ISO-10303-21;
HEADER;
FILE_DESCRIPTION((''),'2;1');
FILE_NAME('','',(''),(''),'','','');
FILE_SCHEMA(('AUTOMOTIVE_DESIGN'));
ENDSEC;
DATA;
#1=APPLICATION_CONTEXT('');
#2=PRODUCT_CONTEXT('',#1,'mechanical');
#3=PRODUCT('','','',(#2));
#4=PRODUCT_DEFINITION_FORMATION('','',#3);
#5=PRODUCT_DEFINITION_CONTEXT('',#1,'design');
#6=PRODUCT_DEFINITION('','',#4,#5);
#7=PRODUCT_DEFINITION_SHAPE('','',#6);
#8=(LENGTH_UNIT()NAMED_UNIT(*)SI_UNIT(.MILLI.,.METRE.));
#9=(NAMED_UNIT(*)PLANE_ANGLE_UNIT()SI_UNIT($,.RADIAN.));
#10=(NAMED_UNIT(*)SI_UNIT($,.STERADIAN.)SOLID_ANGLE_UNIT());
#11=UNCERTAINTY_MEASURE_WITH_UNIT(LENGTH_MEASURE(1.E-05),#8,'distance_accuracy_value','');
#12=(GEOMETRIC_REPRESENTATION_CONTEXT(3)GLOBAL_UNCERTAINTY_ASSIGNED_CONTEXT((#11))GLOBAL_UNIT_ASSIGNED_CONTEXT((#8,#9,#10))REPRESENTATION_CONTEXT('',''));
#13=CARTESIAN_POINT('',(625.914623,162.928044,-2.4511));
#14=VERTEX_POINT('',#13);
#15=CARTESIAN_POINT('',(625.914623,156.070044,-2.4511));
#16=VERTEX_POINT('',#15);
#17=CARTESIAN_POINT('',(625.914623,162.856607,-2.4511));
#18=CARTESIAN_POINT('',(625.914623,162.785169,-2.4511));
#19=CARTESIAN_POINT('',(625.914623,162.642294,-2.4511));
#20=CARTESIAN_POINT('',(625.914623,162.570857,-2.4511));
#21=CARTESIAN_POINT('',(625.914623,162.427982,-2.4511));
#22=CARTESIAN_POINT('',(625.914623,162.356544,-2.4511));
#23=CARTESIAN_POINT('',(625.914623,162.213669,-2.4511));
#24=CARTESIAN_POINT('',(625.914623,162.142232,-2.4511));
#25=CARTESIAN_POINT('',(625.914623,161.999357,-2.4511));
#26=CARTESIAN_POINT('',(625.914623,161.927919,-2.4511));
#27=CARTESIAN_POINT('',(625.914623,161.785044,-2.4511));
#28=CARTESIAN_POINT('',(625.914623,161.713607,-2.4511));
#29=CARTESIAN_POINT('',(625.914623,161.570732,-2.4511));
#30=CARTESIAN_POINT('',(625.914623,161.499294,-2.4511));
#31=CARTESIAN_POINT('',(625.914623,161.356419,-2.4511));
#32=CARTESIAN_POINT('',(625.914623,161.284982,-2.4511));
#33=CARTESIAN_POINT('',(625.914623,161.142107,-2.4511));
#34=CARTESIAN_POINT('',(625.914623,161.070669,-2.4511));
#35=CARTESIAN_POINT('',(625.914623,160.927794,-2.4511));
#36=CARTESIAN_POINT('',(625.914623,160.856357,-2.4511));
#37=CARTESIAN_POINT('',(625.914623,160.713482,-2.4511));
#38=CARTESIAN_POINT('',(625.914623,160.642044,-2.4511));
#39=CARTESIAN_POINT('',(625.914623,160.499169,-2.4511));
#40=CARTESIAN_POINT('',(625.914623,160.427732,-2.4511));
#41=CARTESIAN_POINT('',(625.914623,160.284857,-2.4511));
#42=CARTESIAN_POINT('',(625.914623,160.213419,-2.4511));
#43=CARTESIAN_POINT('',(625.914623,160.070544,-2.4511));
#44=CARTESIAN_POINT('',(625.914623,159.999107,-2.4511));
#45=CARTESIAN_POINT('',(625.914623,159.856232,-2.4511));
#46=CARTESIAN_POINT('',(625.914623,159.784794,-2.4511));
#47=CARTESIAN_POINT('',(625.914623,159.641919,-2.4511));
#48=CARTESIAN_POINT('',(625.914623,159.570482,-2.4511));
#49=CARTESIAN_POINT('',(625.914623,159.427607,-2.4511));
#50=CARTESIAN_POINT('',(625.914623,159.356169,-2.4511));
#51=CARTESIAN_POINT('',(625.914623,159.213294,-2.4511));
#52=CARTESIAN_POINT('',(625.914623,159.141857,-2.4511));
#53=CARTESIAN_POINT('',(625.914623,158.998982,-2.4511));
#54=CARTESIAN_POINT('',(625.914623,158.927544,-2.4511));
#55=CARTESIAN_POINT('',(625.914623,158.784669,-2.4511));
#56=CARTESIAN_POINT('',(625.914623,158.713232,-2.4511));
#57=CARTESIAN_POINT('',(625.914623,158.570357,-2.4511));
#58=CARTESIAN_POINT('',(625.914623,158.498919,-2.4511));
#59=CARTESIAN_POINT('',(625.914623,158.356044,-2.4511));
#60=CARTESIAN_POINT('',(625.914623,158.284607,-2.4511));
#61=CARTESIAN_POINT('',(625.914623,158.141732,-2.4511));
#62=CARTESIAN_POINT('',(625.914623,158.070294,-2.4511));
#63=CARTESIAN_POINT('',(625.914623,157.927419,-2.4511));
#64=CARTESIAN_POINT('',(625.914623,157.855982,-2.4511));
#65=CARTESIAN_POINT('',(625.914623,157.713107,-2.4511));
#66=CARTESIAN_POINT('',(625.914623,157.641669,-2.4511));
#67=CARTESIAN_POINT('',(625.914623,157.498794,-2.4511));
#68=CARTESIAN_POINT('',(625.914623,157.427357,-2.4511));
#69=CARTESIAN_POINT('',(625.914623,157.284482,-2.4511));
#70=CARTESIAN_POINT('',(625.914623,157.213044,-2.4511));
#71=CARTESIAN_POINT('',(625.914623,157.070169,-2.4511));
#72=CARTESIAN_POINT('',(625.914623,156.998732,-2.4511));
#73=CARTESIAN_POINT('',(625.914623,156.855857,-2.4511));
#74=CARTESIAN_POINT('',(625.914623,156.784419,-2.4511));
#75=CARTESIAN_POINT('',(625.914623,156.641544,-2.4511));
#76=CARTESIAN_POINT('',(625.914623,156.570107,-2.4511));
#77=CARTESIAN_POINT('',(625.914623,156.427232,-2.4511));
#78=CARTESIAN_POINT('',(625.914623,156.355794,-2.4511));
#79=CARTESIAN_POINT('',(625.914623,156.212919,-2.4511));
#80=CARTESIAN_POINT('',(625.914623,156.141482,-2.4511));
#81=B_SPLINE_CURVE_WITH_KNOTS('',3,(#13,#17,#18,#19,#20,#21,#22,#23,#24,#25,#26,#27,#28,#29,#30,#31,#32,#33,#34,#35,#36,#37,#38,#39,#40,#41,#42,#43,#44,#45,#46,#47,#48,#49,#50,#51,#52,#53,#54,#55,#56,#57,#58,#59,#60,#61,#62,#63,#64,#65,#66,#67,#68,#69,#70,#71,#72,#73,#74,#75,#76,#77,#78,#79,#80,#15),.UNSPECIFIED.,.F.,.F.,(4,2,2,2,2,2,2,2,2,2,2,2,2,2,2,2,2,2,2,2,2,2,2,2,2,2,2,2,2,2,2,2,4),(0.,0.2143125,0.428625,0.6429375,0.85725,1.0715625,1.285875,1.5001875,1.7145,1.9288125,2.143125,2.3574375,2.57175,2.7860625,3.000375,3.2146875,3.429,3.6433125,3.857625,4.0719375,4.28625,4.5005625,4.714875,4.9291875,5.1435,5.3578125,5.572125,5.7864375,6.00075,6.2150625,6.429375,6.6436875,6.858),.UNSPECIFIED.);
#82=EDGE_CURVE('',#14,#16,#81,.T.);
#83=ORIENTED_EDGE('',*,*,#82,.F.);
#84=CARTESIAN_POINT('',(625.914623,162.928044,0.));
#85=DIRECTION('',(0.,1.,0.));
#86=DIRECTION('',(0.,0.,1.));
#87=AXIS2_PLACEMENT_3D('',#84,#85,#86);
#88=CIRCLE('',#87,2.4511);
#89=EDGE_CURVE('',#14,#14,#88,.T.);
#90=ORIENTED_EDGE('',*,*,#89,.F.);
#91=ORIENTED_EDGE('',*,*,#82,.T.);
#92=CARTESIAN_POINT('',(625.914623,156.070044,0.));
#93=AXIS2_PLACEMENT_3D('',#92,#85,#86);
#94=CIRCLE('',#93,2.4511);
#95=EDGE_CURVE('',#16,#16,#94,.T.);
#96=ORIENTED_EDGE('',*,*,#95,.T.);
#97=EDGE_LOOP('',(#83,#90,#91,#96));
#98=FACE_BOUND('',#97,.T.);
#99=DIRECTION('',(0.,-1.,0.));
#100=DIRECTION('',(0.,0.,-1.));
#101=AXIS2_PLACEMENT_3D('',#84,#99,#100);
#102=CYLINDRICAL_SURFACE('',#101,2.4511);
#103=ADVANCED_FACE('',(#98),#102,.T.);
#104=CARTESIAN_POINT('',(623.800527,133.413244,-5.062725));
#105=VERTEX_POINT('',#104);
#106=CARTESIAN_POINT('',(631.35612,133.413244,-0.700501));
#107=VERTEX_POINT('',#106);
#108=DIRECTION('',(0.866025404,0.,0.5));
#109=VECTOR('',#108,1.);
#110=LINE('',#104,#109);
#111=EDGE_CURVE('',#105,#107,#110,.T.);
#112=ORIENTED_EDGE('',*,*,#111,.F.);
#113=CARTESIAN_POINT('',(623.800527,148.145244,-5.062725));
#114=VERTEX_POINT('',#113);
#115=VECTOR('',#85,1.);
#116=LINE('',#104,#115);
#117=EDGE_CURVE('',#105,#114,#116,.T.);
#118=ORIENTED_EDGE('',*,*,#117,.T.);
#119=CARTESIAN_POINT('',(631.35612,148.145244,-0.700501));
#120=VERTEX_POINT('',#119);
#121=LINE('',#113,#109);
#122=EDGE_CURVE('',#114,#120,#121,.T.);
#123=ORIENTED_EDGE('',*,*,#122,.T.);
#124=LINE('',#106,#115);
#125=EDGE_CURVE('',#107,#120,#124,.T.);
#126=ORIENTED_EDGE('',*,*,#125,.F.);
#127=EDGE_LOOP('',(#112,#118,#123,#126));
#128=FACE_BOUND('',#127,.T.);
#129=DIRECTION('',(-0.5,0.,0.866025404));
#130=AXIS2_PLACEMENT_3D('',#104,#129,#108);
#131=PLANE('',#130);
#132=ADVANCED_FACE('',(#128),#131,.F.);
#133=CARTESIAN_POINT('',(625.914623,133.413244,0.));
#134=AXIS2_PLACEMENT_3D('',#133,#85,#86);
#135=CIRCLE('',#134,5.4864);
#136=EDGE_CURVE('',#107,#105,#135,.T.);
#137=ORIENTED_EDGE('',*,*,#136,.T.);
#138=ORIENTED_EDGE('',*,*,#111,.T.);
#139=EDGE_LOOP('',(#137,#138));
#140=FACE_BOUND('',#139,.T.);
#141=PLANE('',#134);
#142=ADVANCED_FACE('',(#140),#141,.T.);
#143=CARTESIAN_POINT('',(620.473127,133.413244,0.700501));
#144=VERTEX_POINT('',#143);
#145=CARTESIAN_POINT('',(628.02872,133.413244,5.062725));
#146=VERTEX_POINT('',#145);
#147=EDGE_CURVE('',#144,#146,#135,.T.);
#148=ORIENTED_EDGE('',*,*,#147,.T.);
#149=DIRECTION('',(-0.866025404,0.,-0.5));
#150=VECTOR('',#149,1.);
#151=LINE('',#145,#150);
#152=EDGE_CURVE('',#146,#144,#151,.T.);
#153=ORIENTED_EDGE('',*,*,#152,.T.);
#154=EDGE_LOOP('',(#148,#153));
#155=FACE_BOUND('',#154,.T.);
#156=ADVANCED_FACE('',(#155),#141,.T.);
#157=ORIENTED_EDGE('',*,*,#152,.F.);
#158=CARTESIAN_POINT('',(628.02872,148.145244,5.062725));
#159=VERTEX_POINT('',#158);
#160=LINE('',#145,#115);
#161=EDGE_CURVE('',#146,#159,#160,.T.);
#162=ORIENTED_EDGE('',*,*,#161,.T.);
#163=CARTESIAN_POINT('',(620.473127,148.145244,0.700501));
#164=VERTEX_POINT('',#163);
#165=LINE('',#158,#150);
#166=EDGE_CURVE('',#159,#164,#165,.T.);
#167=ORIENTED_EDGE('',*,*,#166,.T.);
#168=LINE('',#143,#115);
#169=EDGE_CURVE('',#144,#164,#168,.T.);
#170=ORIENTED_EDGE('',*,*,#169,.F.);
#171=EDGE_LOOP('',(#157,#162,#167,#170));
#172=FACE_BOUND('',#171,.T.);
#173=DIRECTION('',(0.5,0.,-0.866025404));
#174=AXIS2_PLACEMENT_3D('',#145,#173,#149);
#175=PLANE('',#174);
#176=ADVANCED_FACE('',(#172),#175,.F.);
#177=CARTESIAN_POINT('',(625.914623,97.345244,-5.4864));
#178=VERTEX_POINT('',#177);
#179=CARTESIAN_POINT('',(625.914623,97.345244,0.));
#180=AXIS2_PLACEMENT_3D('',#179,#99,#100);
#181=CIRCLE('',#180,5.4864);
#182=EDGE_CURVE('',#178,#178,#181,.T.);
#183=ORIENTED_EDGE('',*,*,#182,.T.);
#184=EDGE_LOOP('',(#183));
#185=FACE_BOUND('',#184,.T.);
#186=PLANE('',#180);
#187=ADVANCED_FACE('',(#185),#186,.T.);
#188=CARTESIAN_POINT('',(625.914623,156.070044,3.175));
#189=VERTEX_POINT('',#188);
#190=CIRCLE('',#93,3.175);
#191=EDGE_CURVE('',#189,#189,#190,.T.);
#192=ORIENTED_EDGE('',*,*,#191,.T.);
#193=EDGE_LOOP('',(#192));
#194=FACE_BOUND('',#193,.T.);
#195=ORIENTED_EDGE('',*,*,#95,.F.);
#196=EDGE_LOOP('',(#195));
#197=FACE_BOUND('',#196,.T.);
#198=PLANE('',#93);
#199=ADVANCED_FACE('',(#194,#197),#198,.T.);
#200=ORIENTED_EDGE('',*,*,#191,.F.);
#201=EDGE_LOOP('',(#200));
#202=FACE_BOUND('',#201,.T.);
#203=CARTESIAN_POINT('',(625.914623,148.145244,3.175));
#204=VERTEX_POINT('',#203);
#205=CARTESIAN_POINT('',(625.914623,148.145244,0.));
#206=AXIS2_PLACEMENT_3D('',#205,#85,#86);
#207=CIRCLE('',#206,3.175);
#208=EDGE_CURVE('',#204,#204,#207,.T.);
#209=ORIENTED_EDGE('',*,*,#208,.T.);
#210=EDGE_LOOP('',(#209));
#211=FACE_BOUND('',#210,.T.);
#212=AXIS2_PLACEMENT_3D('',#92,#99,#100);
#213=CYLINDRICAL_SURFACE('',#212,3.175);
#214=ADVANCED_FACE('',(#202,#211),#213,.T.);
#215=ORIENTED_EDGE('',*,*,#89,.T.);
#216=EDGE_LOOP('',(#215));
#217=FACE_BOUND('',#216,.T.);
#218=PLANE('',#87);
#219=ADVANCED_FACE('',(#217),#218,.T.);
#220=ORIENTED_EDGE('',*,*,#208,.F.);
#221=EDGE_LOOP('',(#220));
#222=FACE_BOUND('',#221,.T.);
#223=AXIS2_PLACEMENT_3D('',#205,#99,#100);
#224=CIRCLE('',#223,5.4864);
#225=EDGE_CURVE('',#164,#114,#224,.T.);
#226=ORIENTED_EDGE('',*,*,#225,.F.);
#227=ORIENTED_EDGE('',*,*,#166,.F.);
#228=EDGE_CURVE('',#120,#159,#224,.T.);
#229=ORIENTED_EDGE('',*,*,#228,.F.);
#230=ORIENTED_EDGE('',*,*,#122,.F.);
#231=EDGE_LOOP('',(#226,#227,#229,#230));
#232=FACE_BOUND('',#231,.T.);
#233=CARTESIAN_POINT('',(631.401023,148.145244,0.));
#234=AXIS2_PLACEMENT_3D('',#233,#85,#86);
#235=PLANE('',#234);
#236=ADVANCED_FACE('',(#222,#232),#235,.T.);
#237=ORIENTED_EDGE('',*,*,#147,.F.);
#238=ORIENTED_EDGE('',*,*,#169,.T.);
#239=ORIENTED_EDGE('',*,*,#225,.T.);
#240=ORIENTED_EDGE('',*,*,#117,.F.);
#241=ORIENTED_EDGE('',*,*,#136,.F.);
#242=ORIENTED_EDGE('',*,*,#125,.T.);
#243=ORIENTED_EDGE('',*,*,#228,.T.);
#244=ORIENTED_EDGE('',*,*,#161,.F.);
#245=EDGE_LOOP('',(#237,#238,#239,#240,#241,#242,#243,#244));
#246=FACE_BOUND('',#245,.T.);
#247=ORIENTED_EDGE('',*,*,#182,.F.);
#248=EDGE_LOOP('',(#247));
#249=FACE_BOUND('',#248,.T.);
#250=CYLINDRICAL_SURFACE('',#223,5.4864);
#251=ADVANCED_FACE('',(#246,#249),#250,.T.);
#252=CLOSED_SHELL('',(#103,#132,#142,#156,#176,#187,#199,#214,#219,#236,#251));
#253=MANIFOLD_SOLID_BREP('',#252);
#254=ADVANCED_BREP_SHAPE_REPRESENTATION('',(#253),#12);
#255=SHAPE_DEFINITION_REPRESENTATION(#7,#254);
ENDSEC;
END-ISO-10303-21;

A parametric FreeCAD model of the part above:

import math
import FreeCAD as App
import Part
import Sketcher

V = App.Vector
Q = App.Units.Quantity

doc = App.newDocument("Part")
params = doc.addObject("Spreadsheet::Sheet", "Params")
for row, (alias, value) in enumerate([
    ("sketch1_height", "2 in"),
    ("sketch1_width", "0.216 in"),
    ("revolution_angle", "360 deg"),
    ("sketch2_radius", "0.216 in"),
    ("pocket1_length", "0.58 in"),
    ("sketch3_radius", "0.216 in"),
    ("pocket2_length", "0.58 in"),
    ("sketch4_diameter", "0.25 in"),
    ("pad1_length", "0.312 in"),
    ("sketch5_diameter", "0.193 in"),
    ("pad2_length", "0.27 in"),
], start=1):
    params.set(f"A{row}", alias)
    params.set(f"B{row}", "=" + value)
    params.setAlias(f"B{row}", alias)

body = doc.addObject("PartDesign::Body", "Body")

# Sketch on XY plane
sketch1 = body.newObject("Sketcher::SketchObject", "Sketch")
sketch1.AttachmentSupport = (doc.getObject("XY_Plane"), [""])
sketch1.MapMode = "FlatFace"
sketch1.addGeometry(Part.LineSegment(V(626, 148, 0), V(626, 97, 0)), False)
sketch1.addGeometry(Part.LineSegment(V(626, 97, 0), V(631, 97, 0)), False)
sketch1.addGeometry(Part.LineSegment(V(631, 97, 0), V(631, 148, 0)), False)
sketch1.addGeometry(Part.LineSegment(V(631, 148, 0), V(626, 148, 0)), False)
sketch1.addGeometry(Part.LineSegment(V(626, 148, 0), V(626, 97, 0)), True)  # axis
sketch1.addConstraint(Sketcher.Constraint("Coincident", 0, 2, 1, 1))
sketch1.addConstraint(Sketcher.Constraint("Coincident", 1, 2, 2, 1))
sketch1.addConstraint(Sketcher.Constraint("Coincident", 2, 2, 3, 1))
sketch1.addConstraint(Sketcher.Constraint("Coincident", 3, 2, 0, 1))
sketch1.addConstraint(Sketcher.Constraint("Vertical", 0))
sketch1.addConstraint(Sketcher.Constraint("Horizontal", 1))
sketch1.addConstraint(Sketcher.Constraint("Vertical", 2))
sketch1.addConstraint(Sketcher.Constraint("Horizontal", 3))
sketch1.addConstraint(Sketcher.Constraint("Vertical", 4))
sketch1.addConstraint(Sketcher.Constraint("Coincident", 4, 1, 3, 2))
sketch1.addConstraint(Sketcher.Constraint("Horizontal", 1, 2, 4, 2))
sketch1.addConstraint(Sketcher.Constraint("DistanceY", 0, 2, 0, 1, Q("2 in")))
sketch1.addConstraint(Sketcher.Constraint("DistanceX", 1, 1, 1, 2, Q("0.216 in")))
sketch1.addConstraint(Sketcher.Constraint("DistanceX", -1, 1, 0, 2, 625.914623))
sketch1.addConstraint(Sketcher.Constraint("DistanceY", -1, 1, 0, 2, 97.345244))
sketch1.setExpression("Constraints[11]", "Params.sketch1_height")
sketch1.setExpression("Constraints[12]", "Params.sketch1_width")
revolution = body.newObject("PartDesign::Revolution", "Revolution")
revolution.Profile = sketch1
revolution.ReferenceAxis = (sketch1, ["Axis0"])
revolution.setExpression("Angle", "Params.revolution_angle")

# Sketch on XZ plane
sketch2 = body.newObject("Sketcher::SketchObject", "Sketch001")
sketch2.AttachmentSupport = (doc.getObject("XZ_Plane"), [""])
sketch2.MapMode = "FlatFace"
sketch2.AttachmentOffset = App.Placement(V(0, 0, -148.145244), App.Rotation())
sketch2.addGeometry(Part.LineSegment(V(628, 5, 0), V(620, 1, 0)), False)
sketch2.addGeometry(Part.ArcOfCircle(Part.Circle(V(626, 0, 0), V(0, 0, 1), 5), math.radians(67), math.radians(173)), False)
sketch2.addConstraint(Sketcher.Constraint("Coincident", 0, 1, 1, 1))
sketch2.addConstraint(Sketcher.Constraint("Coincident", 1, 2, 0, 2))
sketch2.addConstraint(Sketcher.Constraint("PointOnObject", 1, 3, -1))
sketch2.addConstraint(Sketcher.Constraint("Angle", 0, Q("-150 deg")))
sketch2.addConstraint(Sketcher.Constraint("Radius", 1, Q("0.216 in")))
sketch2.addConstraint(Sketcher.Constraint("DistanceY", -1, 1, 1, 2, 0.700501))
sketch2.addConstraint(Sketcher.Constraint("DistanceX", -1, 1, 0, 1, 628.02872))
sketch2.setExpression("Constraints[4]", "Params.sketch2_radius")
pocket1 = body.newObject("PartDesign::Pocket", "Pocket")
pocket1.Profile = sketch2
pocket1.setExpression("Length", "Params.pocket1_length")
pocket1.Reversed = True

# Sketch on XZ plane
sketch3 = body.newObject("Sketcher::SketchObject", "Sketch002")
sketch3.AttachmentSupport = (doc.getObject("XZ_Plane"), [""])
sketch3.MapMode = "FlatFace"
sketch3.AttachmentOffset = App.Placement(V(0, 0, -148.145244), App.Rotation())
sketch3.addGeometry(Part.LineSegment(V(624, -5, 0), V(631, -1, 0)), False)
sketch3.addGeometry(Part.ArcOfCircle(Part.Circle(V(626, 0, 0), V(0, 0, 1), 5), math.radians(-113), math.radians(-7)), False)
sketch3.addConstraint(Sketcher.Constraint("Coincident", 0, 1, 1, 1))
sketch3.addConstraint(Sketcher.Constraint("Coincident", 1, 2, 0, 2))
sketch3.addConstraint(Sketcher.Constraint("PointOnObject", 1, 3, -1))
sketch3.addConstraint(Sketcher.Constraint("Angle", 0, Q("30 deg")))
sketch3.addConstraint(Sketcher.Constraint("Radius", 1, Q("0.216 in")))
sketch3.addConstraint(Sketcher.Constraint("DistanceY", 1, 2, -1, 1, 0.700501))
sketch3.addConstraint(Sketcher.Constraint("DistanceX", -1, 1, 1, 2, 631.35612))
sketch3.setExpression("Constraints[4]", "Params.sketch3_radius")
pocket2 = body.newObject("PartDesign::Pocket", "Pocket001")
pocket2.Profile = sketch3
pocket2.setExpression("Length", "Params.pocket2_length")
pocket2.Reversed = True

# Sketch on XZ plane
sketch4 = body.newObject("Sketcher::SketchObject", "Sketch003")
sketch4.AttachmentSupport = (doc.getObject("XZ_Plane"), [""])
sketch4.MapMode = "FlatFace"
sketch4.AttachmentOffset = App.Placement(V(0, 0, -148.145244), App.Rotation())
sketch4.addGeometry(Part.Circle(V(625.9, 0, 0), V(0, 0, 1), 3.2), False)
sketch4.addConstraint(Sketcher.Constraint("PointOnObject", 0, 3, -1))
sketch4.addConstraint(Sketcher.Constraint("Diameter", 0, Q("0.25 in")))
sketch4.addConstraint(Sketcher.Constraint("DistanceX", -1, 1, 0, 3, 625.914623))
sketch4.setExpression("Constraints[1]", "Params.sketch4_diameter")
pad1 = body.newObject("PartDesign::Pad", "Pad")
pad1.Profile = sketch4
pad1.setExpression("Length", "Params.pad1_length")
pad1.Reversed = True

# Sketch on XZ plane
sketch5 = body.newObject("Sketcher::SketchObject", "Sketch004")
sketch5.AttachmentSupport = (doc.getObject("XZ_Plane"), [""])
sketch5.MapMode = "FlatFace"
sketch5.AttachmentOffset = App.Placement(V(0, 0, -156.070044), App.Rotation())
sketch5.addGeometry(Part.Circle(V(625.9, 0, 0), V(0, 0, 1), 2.5), False)
sketch5.addConstraint(Sketcher.Constraint("PointOnObject", 0, 3, -1))
sketch5.addConstraint(Sketcher.Constraint("Diameter", 0, Q("0.193 in")))
sketch5.addConstraint(Sketcher.Constraint("DistanceX", -1, 1, 0, 3, 625.914623))
sketch5.setExpression("Constraints[1]", "Params.sketch5_diameter")
pad2 = body.newObject("PartDesign::Pad", "Pad001")
pad2.Profile = sketch5
pad2.setExpression("Length", "Params.pad2_length")
pad2.Reversed = True

doc.recompute()
